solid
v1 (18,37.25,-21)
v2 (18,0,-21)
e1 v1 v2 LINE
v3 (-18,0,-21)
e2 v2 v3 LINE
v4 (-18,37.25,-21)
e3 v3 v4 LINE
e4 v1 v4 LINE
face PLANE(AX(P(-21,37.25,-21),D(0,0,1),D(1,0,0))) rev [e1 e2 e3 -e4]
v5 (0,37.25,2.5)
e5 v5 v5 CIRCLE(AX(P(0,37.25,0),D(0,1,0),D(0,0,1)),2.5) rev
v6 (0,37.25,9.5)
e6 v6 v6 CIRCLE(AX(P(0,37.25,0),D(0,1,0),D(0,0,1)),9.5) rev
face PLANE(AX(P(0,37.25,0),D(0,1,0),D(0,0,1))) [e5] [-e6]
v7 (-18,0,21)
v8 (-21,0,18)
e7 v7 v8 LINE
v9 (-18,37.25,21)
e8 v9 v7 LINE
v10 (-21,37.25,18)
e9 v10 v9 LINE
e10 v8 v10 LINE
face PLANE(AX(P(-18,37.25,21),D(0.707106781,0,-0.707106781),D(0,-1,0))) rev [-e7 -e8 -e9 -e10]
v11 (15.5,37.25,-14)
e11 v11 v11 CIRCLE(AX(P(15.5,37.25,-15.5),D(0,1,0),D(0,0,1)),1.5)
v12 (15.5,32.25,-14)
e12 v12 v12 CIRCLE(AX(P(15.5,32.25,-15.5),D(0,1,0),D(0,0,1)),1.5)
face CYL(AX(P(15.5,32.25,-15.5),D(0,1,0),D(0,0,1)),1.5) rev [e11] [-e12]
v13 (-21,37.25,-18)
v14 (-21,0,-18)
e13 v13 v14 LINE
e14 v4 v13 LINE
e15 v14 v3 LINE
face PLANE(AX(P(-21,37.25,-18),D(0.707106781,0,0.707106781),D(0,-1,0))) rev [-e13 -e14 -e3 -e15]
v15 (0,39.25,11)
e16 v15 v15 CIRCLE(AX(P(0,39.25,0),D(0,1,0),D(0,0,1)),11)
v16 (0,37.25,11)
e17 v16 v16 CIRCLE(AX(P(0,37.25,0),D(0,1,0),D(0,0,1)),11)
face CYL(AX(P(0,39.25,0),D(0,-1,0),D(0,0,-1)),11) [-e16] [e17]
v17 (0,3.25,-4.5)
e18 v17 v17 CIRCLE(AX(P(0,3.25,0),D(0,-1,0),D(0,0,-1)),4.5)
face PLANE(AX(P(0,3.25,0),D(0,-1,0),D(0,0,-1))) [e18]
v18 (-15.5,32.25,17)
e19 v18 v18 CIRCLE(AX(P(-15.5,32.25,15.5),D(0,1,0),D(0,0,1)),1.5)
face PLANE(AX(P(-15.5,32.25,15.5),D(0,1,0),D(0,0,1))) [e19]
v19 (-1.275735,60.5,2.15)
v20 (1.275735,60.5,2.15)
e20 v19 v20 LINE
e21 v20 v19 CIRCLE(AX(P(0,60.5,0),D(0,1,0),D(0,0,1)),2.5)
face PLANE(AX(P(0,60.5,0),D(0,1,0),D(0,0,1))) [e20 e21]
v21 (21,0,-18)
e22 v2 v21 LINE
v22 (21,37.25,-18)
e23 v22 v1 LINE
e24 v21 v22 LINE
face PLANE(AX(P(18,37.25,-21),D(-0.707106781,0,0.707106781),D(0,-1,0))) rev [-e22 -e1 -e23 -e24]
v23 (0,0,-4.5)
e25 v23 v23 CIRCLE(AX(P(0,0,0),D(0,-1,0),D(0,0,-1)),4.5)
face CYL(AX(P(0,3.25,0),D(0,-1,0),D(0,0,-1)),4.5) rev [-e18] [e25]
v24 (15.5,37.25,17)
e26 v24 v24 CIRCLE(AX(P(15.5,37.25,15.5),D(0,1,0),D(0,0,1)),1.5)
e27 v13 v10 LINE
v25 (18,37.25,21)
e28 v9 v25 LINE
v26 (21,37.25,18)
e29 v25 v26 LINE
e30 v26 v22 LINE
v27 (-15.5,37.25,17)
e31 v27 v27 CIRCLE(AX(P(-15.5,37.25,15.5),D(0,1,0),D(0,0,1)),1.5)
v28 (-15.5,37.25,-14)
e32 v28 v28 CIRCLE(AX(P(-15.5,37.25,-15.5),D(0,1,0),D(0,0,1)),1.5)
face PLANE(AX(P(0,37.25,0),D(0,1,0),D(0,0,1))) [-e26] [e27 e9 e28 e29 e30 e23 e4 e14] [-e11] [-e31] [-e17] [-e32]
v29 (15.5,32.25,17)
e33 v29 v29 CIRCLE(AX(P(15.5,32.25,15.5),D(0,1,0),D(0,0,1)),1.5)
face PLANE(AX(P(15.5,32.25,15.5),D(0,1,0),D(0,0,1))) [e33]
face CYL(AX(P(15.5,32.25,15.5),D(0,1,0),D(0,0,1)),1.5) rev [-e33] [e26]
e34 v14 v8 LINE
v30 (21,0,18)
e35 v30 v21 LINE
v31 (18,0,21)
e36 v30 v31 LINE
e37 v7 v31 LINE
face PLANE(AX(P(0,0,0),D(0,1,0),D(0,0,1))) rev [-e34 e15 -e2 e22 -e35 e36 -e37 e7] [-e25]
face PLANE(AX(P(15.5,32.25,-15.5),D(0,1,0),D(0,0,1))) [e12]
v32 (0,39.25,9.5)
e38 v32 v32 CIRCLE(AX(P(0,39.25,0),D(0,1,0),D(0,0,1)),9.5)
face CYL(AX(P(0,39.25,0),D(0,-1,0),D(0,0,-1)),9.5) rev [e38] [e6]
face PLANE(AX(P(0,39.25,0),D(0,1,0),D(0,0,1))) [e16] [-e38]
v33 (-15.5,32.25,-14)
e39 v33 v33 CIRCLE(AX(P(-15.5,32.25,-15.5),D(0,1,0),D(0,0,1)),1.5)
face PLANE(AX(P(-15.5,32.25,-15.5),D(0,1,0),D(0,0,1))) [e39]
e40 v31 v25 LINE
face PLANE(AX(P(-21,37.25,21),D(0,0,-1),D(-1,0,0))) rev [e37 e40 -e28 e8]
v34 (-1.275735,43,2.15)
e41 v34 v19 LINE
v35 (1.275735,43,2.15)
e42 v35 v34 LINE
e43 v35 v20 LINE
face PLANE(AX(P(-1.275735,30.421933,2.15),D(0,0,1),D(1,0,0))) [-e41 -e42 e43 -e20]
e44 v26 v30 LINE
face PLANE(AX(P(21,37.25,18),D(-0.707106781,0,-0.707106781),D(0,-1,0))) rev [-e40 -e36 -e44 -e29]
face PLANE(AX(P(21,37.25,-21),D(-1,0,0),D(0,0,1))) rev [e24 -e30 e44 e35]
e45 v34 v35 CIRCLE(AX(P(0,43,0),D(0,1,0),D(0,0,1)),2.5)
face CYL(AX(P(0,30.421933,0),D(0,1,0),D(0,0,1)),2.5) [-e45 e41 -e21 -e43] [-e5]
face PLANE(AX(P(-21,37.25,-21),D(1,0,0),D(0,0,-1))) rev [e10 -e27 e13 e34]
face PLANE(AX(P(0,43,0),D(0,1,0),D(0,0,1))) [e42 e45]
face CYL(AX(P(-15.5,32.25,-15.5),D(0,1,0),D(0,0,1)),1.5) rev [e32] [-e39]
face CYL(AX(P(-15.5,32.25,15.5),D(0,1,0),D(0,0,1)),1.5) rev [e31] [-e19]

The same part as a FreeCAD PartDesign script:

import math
import FreeCAD as App
import Part
import Sketcher
Q = App.Units.Quantity


def edges_at(feature, points):
    """Names of the edges that pass closest to the given points."""
    edges = feature.Shape.Edges
    near = lambda p: min(range(len(edges)), key=lambda i: edges[i].distToShape(Part.Vertex(*p))[0])
    return sorted({f"Edge{near(p) + 1}" for p in points})


def add_polygon(sketch, points):
    """Adds a closed chain of lines whose ends are joined by coincident constraints."""
    first, n = sketch.GeometryCount, len(points)
    for a, b in zip(points, points[1:] + points[:1]):
        sketch.addGeometry(Part.LineSegment(App.Vector(*a, 0), App.Vector(*b, 0)), False)
    for i in range(n):
        sketch.addConstraint(Sketcher.Constraint("Coincident", first + i, 2, first + (i + 1) % n, 1))

doc = App.newDocument("Part")
body = doc.addObject("PartDesign::Body", "Body")

# Sketch on XZ plane
sketch1 = body.newObject("Sketcher::SketchObject", "Sketch")
sketch1.AttachmentSupport = (doc.getObject("XZ_Plane"), [""])
sketch1.MapMode = "FlatFace"
add_polygon(sketch1, [(-21, -21), (-21, 21), (21, 21), (21, -21)])  # lines 0-3
sketch1.addConstraint([
    Sketcher.Constraint("Vertical", 0),
    Sketcher.Constraint("Horizontal", 1),
    Sketcher.Constraint("Vertical", 2),
    Sketcher.Constraint("Horizontal", 3),
    Sketcher.Constraint("Symmetric", 0, 2, 2, 2, -1, 1),
    Sketcher.Constraint("Equal", 3, 0),
    Sketcher.Constraint("DistanceX", 1, 1, 1, 2, Q("42 mm")),
])
pad1 = body.newObject("PartDesign::Pad", "Pad")
pad1.Profile = sketch1
pad1.Length = 37.25
pad1.Reversed = True

# Sketch on XZ plane
sketch2 = body.newObject("Sketcher::SketchObject", "Sketch001")
sketch2.AttachmentSupport = (doc.getObject("XZ_Plane"), [""])
sketch2.MapMode = "FlatFace"
sketch2.AttachmentOffset = App.Placement(App.Vector(0, 0, -37.25), App.Rotation())
sketch2.addGeometry([
    Part.Circle(App.Vector(15.5, -15.5, 0), App.Vector(0, 0, 1), 1.5),
    Part.Circle(App.Vector(15.5, 15.5, 0), App.Vector(0, 0, 1), 1.5),
    Part.Circle(App.Vector(-15.5, 15.5, 0), App.Vector(0, 0, 1), 1.5),
    Part.Circle(App.Vector(-15.5, -15.5, 0), App.Vector(0, 0, 1), 1.5),
], False)
sketch2.addConstraint([
    Sketcher.Constraint("Equal", 0, 1),
    Sketcher.Constraint("Equal", 1, 2),
    Sketcher.Constraint("Equal", 2, 3),
    Sketcher.Constraint("Symmetric", 0, 3, 2, 3, -1, 1),
    Sketcher.Constraint("Symmetric", 1, 3, 3, 3, -1, 1),
    Sketcher.Constraint("Symmetric", 1, 3, 2, 3, -2),
    Sketcher.Constraint("Diameter", 0, Q("3 mm")),
    Sketcher.Constraint("DistanceY", 0, 3, 1, 3, Q("31 mm")),
    Sketcher.Constraint("DistanceX", 2, 3, 1, 3, Q("31 mm")),
])
pocket1 = body.newObject("PartDesign::Pocket", "Pocket")
pocket1.Profile = sketch2
pocket1.Length = 5
pocket1.Reversed = True

# Sketch on XZ plane
sketch3 = body.newObject("Sketcher::SketchObject", "Sketch002")
sketch3.AttachmentSupport = (doc.getObject("XZ_Plane"), [""])
sketch3.MapMode = "FlatFace"
sketch3.AttachmentOffset = App.Placement(App.Vector(0, 0, -37.25), App.Rotation())
sketch3.addGeometry([
    Part.Circle(App.Vector(0, 0, 0), App.Vector(0, 0, 1), 11),
    Part.Circle(App.Vector(0, 0, 0), App.Vector(0, 0, 1), 9.5),
], False)
sketch3.addConstraint([
    Sketcher.Constraint("Coincident", 0, 3, -1, 1),
    Sketcher.Constraint("Coincident", 1, 3, -1, 1),
    Sketcher.Constraint("Diameter", 0, Q("22 mm")),
    Sketcher.Constraint("Diameter", 1, Q("19 mm")),
])
pad2 = body.newObject("PartDesign::Pad", "Pad001")
pad2.Profile = sketch3
pad2.Length = 2
pad2.Reversed = True
doc.recompute()

chamfer = body.newObject("PartDesign::Chamfer", "Chamfer")
chamfer.Base = (pad2, edges_at(pad2, [
    (21, 18.625, 21),
    (-21, 18.625, 21),
    (-21, 18.625, -21),
    (21, 18.625, -21),
]))
chamfer.Size = 3

# Sketch on XZ plane
sketch4 = body.newObject("Sketcher::SketchObject", "Sketch003")
sketch4.AttachmentSupport = (doc.getObject("XZ_Plane"), [""])
sketch4.MapMode = "FlatFace"
sketch4.addGeometry(Part.Circle(App.Vector(0, 0, 0), App.Vector(0, 0, 1), 4.5), False)
sketch4.addConstraint([
    Sketcher.Constraint("Coincident", 0, 3, -1, 1),
    Sketcher.Constraint("Diameter", 0, Q("9 mm")),
])
pocket2 = body.newObject("PartDesign::Pocket", "Pocket001")
pocket2.Profile = sketch4
pocket2.Length = 3.25
body2 = doc.addObject("PartDesign::Body", "Body001")

# Sketch on XZ plane
sketch5 = body2.newObject("Sketcher::SketchObject", "Sketch004")
sketch5.AttachmentSupport = (doc.getObject("XZ_Plane001"), [""])
sketch5.MapMode = "FlatFace"
sketch5.AttachmentOffset = App.Placement(App.Vector(0, 0, -60.5), App.Rotation())
sketch5.addGeometry([
    Part.LineSegment(App.Vector(-1.275735, 2.15, 0), App.Vector(1.275735, 2.15, 0)),
    Part.ArcOfCircle(Part.Circle(App.Vector(0, 0, 0), App.Vector(0, 0, 1), 2.5), math.radians(120.683417), math.radians(419.316583)),
], False)
sketch5.addConstraint([
    Sketcher.Constraint("Coincident", 0, 1, 1, 1),
    Sketcher.Constraint("Coincident", 1, 2, 0, 2),
    Sketcher.Constraint("Horizontal", 0),
    Sketcher.Constraint("Coincident", 1, 3, -1, 1),
    Sketcher.Constraint("Radius", 1, Q("2.5 mm")),
    Sketcher.Constraint("DistanceY", -1, 1, 0, 1, Q("2.15 mm")),
])
pad3 = body2.newObject("PartDesign::Pad", "Pad002")
pad3.Profile = sketch5
pad3.Length = 23.25
doc.recompute()

boolean = body.newObject("PartDesign::Boolean", "Boolean")
boolean.Type = "Fuse"
boolean.addObjects([body2])

# Sketch on XZ plane
sketch6 = body.newObject("Sketcher::SketchObject", "Sketch005")
sketch6.AttachmentSupport = (doc.getObject("XZ_Plane"), [""])
sketch6.MapMode = "FlatFace"
sketch6.AttachmentOffset = App.Placement(App.Vector(0, 0, -37.25), App.Rotation())
sketch6.addGeometry(Part.Circle(App.Vector(0, 0, 0), App.Vector(0, 0, 1), 2.5), False)
sketch6.addConstraint([
    Sketcher.Constraint("Coincident", 0, 3, -1, 1),
    Sketcher.Constraint("Diameter", 0, Q("5 mm")),
])
pad4 = body.newObject("PartDesign::Pad", "Pad003")
pad4.Profile = sketch6
pad4.Length = 5.75
pad4.Reversed = True

doc.recompute()
